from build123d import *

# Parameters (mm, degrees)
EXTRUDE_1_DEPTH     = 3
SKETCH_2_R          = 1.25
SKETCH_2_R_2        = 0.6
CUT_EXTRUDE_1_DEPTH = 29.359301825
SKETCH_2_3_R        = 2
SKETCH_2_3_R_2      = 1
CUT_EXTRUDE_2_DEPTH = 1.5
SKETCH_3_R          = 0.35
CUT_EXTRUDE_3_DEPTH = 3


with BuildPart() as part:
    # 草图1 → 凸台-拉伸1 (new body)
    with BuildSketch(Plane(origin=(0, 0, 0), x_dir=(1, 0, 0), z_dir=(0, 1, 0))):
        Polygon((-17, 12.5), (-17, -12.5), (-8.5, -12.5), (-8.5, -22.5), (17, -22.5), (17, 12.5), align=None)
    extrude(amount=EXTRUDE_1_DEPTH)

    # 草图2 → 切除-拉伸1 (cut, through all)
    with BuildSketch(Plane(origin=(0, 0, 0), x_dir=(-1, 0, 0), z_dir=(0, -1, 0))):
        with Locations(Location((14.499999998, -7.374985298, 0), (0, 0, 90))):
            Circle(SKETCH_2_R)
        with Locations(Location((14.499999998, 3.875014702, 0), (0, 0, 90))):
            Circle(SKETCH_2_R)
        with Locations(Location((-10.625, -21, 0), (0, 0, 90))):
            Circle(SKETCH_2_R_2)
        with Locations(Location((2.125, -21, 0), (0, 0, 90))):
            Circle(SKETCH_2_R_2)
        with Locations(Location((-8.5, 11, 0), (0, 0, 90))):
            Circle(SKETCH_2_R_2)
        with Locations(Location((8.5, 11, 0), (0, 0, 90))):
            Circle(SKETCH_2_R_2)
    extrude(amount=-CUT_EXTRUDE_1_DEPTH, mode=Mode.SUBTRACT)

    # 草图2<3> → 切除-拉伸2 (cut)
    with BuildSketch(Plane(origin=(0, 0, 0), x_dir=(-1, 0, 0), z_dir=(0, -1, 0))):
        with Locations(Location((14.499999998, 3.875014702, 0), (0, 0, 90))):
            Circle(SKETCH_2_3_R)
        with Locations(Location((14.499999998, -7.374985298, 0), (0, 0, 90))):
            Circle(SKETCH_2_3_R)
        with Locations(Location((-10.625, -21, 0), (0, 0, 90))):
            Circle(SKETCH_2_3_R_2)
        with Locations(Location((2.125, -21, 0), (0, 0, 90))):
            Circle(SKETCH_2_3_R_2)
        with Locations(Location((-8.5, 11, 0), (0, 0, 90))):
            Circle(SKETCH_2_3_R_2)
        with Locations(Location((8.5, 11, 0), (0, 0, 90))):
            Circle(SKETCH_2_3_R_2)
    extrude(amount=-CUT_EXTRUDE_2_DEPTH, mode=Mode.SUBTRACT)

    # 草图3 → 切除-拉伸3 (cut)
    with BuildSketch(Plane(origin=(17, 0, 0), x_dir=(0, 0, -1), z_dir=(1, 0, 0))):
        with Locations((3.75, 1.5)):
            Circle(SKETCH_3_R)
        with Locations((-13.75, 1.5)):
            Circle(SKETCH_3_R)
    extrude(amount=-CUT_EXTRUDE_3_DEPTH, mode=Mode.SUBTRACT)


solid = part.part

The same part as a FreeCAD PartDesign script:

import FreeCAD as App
import Part
import Sketcher
from FreeCAD import Vector
Q = App.Units.Quantity

doc = App.newDocument("Part")
body = doc.addObject("PartDesign::Body", "Body")

sketch1 = body.newObject("Sketcher::SketchObject", "Sketch")
sketch1.AttachmentSupport = (doc.getObject("XZ_Plane"), [""])
sketch1.MapMode = "FlatFace"
sketch1.addGeometry(Part.LineSegment(Vector(-17, -12.5, 0), Vector(-17, 12.5, 0)), False)
sketch1.addGeometry(Part.LineSegment(Vector(-17, 12.5, 0), Vector(-8.5, 12.5, 0)), False)
sketch1.addGeometry(Part.LineSegment(Vector(-8.5, 12.5, 0), Vector(-8.5, 22.5, 0)), False)
sketch1.addGeometry(Part.LineSegment(Vector(-8.5, 22.5, 0), Vector(17, 22.5, 0)), False)
sketch1.addGeometry(Part.LineSegment(Vector(17, 22.5, 0), Vector(17, -12.5, 0)), False)
sketch1.addGeometry(Part.LineSegment(Vector(17, -12.5, 0), Vector(-17, -12.5, 0)), False)
sketch1.addConstraint(Sketcher.Constraint("Coincident", 0, 2, 1, 1))
sketch1.addConstraint(Sketcher.Constraint("Coincident", 1, 2, 2, 1))
sketch1.addConstraint(Sketcher.Constraint("Coincident", 2, 2, 3, 1))
sketch1.addConstraint(Sketcher.Constraint("Coincident", 3, 2, 4, 1))
sketch1.addConstraint(Sketcher.Constraint("Coincident", 4, 2, 5, 1))
sketch1.addConstraint(Sketcher.Constraint("Coincident", 5, 2, 0, 1))
sketch1.addConstraint(Sketcher.Constraint("Vertical", 0))
sketch1.addConstraint(Sketcher.Constraint("Horizontal", 1))
sketch1.addConstraint(Sketcher.Constraint("Vertical", 2))
sketch1.addConstraint(Sketcher.Constraint("Horizontal", 3))
sketch1.addConstraint(Sketcher.Constraint("Vertical", 4))
sketch1.addConstraint(Sketcher.Constraint("Horizontal", 5))
sketch1.addConstraint(Sketcher.Constraint("Symmetric", 0, 2, 4, 2, -1, 1))
sketch1.addConstraint(Sketcher.Constraint("DistanceX", 5, 2, 5, 1, Q("34 mm")))
sketch1.addConstraint(Sketcher.Constraint("DistanceY", 0, 1, 0, 2, Q("25 mm")))
sketch1.addConstraint(Sketcher.Constraint("DistanceY", 2, 1, 2, 2, Q("10 mm")))
sketch1.addConstraint(Sketcher.Constraint("DistanceX", 1, 1, 1, 2, Q("8.5 mm")))
pad1 = body.newObject("PartDesign::Pad", "Pad")
pad1.Profile = sketch1
pad1.Length = 3
pad1.Reversed = True

sketch2 = body.newObject("Sketcher::SketchObject", "Sketch001")
sketch2.AttachmentSupport = (doc.getObject("XZ_Plane"), [""])
sketch2.MapMode = "FlatFace"
sketch2.addGeometry(Part.Circle(Vector(-14.5, 7.374985, 0), Vector(0, 0, 1), 1.25), False)
sketch2.addGeometry(Part.Circle(Vector(-14.5, -3.875015, 0), Vector(0, 0, 1), 1.25), False)
sketch2.addGeometry(Part.Circle(Vector(10.625, 21, 0), Vector(0, 0, 1), 0.6), False)
sketch2.addGeometry(Part.Circle(Vector(-2.125, 21, 0), Vector(0, 0, 1), 0.6), False)
sketch2.addGeometry(Part.Circle(Vector(8.5, -11, 0), Vector(0, 0, 1), 0.6), False)
sketch2.addGeometry(Part.Circle(Vector(-8.5, -11, 0), Vector(0, 0, 1), 0.6), False)
sketch2.addConstraint(Sketcher.Constraint("Equal", 0, 1))
sketch2.addConstraint(Sketcher.Constraint("Equal", 2, 3))
sketch2.addConstraint(Sketcher.Constraint("Equal", 3, 4))
sketch2.addConstraint(Sketcher.Constraint("Equal", 4, 5))
sketch2.addConstraint(Sketcher.Constraint("Symmetric", 4, 3, 5, 3, -2))
sketch2.addConstraint(Sketcher.Constraint("Horizontal", 2, 3, 3, 3))
sketch2.addConstraint(Sketcher.Constraint("Vertical", 0, 3, 1, 3))
sketch2.addConstraint(Sketcher.Constraint("Diameter", 0, Q("2.5 mm")))
sketch2.addConstraint(Sketcher.Constraint("Diameter", 2, Q("1.2 mm")))
sketch2.addConstraint(Sketcher.Constraint("DistanceY", -1, 1, 2, 3, Q("21 mm")))
sketch2.addConstraint(Sketcher.Constraint("DistanceY", 4, 3, -1, 1, Q("11 mm")))
sketch2.addConstraint(Sketcher.Constraint("DistanceX", 1, 3, 4, 3, Q("23 mm")))
sketch2.addConstraint(Sketcher.Constraint("DistanceX", 1, 3, 5, 3, Q("6 mm")))
sketch2.addConstraint(Sketcher.Constraint("DistanceY", 1, 3, 0, 3, Q("11.25 mm")))
sketch2.addConstraint(Sketcher.Constraint("DistanceX", 3, 3, 2, 3, Q("12.75 mm")))
sketch2.addConstraint(Sketcher.Constraint("DistanceX", -1, 1, 2, 3, Q("10.625 mm")))
sketch2.addConstraint(Sketcher.Constraint("DistanceY", -1, 1, 0, 3, Q("7.374985 mm")))
pocket1 = body.newObject("PartDesign::Pocket", "Pocket")
pocket1.Profile = sketch2
pocket1.Type = "ThroughAll"

sketch3 = body.newObject("Sketcher::SketchObject", "Sketch002")
sketch3.AttachmentSupport = (doc.getObject("XZ_Plane"), [""])
sketch3.MapMode = "FlatFace"
sketch3.addGeometry(Part.Circle(Vector(-14.5, -3.875015, 0), Vector(0, 0, 1), 2), False)
sketch3.addGeometry(Part.Circle(Vector(-14.5, 7.374985, 0), Vector(0, 0, 1), 2), False)
sketch3.addGeometry(Part.Circle(Vector(10.625, 21, 0), Vector(0, 0, 1), 1), False)
sketch3.addGeometry(Part.Circle(Vector(-2.125, 21, 0), Vector(0, 0, 1), 1), False)
sketch3.addGeometry(Part.Circle(Vector(8.5, -11, 0), Vector(0, 0, 1), 1), False)
sketch3.addGeometry(Part.Circle(Vector(-8.5, -11, 0), Vector(0, 0, 1), 1), False)
sketch3.addConstraint(Sketcher.Constraint("Equal", 0, 1))
sketch3.addConstraint(Sketcher.Constraint("Equal", 2, 3))
sketch3.addConstraint(Sketcher.Constraint("Equal", 3, 4))
sketch3.addConstraint(Sketcher.Constraint("Equal", 4, 5))
sketch3.addConstraint(Sketcher.Constraint("Symmetric", 4, 3, 5, 3, -2))
sketch3.addConstraint(Sketcher.Constraint("Horizontal", 2, 3, 3, 3))
sketch3.addConstraint(Sketcher.Constraint("Vertical", 0, 3, 1, 3))
sketch3.addConstraint(Sketcher.Constraint("Diameter", 0, Q("4 mm")))
sketch3.addConstraint(Sketcher.Constraint("Diameter", 2, Q("2 mm")))
sketch3.addConstraint(Sketcher.Constraint("DistanceY", -1, 1, 2, 3, Q("21 mm")))
sketch3.addConstraint(Sketcher.Constraint("DistanceY", 4, 3, -1, 1, Q("11 mm")))
sketch3.addConstraint(Sketcher.Constraint("DistanceX", 0, 3, 4, 3, Q("23 mm")))
sketch3.addConstraint(Sketcher.Constraint("DistanceX", 0, 3, 5, 3, Q("6 mm")))
sketch3.addConstraint(Sketcher.Constraint("DistanceY", 0, 3, 1, 3, Q("11.25 mm")))
sketch3.addConstraint(Sketcher.Constraint("DistanceX", 3, 3, 2, 3, Q("12.75 mm")))
sketch3.addConstraint(Sketcher.Constraint("DistanceX", -1, 1, 2, 3, Q("10.625 mm")))
sketch3.addConstraint(Sketcher.Constraint("DistanceY", 0, 3, -1, 1, Q("3.875015 mm")))
pocket2 = body.newObject("PartDesign::Pocket", "Pocket001")
pocket2.Profile = sketch3
pocket2.Length = 1.5

sketch4 = body.newObject("Sketcher::SketchObject", "Sketch003")
sketch4.AttachmentSupport = (doc.getObject("YZ_Plane"), [""])
sketch4.MapMode = "FlatFace"
sketch4.AttachmentOffset = App.Placement(Vector(0, 0, 17), App.Rotation())
sketch4.addGeometry(Part.Circle(Vector(1.5, -3.75, 0), Vector(0, 0, 1), 0.35), False)
sketch4.addGeometry(Part.Circle(Vector(1.5, 13.75, 0), Vector(0, 0, 1), 0.35), False)
sketch4.addConstraint(Sketcher.Constraint("Equal", 0, 1))
sketch4.addConstraint(Sketcher.Constraint("Vertical", 0, 3, 1, 3))
sketch4.addConstraint(Sketcher.Constraint("Diameter", 0, Q("0.7 mm")))
sketch4.addConstraint(Sketcher.Constraint("DistanceX", -1, 1, 0, 3, Q("1.5 mm")))
sketch4.addConstraint(Sketcher.Constraint("DistanceY", 0, 3, 1, 3, Q("17.5 mm")))
sketch4.addConstraint(Sketcher.Constraint("DistanceY", 0, 3, -1, 1, Q("3.75 mm")))
pocket3 = body.newObject("PartDesign::Pocket", "Pocket002")
pocket3.Profile = sketch4
pocket3.Length = 3

doc.recompute()
